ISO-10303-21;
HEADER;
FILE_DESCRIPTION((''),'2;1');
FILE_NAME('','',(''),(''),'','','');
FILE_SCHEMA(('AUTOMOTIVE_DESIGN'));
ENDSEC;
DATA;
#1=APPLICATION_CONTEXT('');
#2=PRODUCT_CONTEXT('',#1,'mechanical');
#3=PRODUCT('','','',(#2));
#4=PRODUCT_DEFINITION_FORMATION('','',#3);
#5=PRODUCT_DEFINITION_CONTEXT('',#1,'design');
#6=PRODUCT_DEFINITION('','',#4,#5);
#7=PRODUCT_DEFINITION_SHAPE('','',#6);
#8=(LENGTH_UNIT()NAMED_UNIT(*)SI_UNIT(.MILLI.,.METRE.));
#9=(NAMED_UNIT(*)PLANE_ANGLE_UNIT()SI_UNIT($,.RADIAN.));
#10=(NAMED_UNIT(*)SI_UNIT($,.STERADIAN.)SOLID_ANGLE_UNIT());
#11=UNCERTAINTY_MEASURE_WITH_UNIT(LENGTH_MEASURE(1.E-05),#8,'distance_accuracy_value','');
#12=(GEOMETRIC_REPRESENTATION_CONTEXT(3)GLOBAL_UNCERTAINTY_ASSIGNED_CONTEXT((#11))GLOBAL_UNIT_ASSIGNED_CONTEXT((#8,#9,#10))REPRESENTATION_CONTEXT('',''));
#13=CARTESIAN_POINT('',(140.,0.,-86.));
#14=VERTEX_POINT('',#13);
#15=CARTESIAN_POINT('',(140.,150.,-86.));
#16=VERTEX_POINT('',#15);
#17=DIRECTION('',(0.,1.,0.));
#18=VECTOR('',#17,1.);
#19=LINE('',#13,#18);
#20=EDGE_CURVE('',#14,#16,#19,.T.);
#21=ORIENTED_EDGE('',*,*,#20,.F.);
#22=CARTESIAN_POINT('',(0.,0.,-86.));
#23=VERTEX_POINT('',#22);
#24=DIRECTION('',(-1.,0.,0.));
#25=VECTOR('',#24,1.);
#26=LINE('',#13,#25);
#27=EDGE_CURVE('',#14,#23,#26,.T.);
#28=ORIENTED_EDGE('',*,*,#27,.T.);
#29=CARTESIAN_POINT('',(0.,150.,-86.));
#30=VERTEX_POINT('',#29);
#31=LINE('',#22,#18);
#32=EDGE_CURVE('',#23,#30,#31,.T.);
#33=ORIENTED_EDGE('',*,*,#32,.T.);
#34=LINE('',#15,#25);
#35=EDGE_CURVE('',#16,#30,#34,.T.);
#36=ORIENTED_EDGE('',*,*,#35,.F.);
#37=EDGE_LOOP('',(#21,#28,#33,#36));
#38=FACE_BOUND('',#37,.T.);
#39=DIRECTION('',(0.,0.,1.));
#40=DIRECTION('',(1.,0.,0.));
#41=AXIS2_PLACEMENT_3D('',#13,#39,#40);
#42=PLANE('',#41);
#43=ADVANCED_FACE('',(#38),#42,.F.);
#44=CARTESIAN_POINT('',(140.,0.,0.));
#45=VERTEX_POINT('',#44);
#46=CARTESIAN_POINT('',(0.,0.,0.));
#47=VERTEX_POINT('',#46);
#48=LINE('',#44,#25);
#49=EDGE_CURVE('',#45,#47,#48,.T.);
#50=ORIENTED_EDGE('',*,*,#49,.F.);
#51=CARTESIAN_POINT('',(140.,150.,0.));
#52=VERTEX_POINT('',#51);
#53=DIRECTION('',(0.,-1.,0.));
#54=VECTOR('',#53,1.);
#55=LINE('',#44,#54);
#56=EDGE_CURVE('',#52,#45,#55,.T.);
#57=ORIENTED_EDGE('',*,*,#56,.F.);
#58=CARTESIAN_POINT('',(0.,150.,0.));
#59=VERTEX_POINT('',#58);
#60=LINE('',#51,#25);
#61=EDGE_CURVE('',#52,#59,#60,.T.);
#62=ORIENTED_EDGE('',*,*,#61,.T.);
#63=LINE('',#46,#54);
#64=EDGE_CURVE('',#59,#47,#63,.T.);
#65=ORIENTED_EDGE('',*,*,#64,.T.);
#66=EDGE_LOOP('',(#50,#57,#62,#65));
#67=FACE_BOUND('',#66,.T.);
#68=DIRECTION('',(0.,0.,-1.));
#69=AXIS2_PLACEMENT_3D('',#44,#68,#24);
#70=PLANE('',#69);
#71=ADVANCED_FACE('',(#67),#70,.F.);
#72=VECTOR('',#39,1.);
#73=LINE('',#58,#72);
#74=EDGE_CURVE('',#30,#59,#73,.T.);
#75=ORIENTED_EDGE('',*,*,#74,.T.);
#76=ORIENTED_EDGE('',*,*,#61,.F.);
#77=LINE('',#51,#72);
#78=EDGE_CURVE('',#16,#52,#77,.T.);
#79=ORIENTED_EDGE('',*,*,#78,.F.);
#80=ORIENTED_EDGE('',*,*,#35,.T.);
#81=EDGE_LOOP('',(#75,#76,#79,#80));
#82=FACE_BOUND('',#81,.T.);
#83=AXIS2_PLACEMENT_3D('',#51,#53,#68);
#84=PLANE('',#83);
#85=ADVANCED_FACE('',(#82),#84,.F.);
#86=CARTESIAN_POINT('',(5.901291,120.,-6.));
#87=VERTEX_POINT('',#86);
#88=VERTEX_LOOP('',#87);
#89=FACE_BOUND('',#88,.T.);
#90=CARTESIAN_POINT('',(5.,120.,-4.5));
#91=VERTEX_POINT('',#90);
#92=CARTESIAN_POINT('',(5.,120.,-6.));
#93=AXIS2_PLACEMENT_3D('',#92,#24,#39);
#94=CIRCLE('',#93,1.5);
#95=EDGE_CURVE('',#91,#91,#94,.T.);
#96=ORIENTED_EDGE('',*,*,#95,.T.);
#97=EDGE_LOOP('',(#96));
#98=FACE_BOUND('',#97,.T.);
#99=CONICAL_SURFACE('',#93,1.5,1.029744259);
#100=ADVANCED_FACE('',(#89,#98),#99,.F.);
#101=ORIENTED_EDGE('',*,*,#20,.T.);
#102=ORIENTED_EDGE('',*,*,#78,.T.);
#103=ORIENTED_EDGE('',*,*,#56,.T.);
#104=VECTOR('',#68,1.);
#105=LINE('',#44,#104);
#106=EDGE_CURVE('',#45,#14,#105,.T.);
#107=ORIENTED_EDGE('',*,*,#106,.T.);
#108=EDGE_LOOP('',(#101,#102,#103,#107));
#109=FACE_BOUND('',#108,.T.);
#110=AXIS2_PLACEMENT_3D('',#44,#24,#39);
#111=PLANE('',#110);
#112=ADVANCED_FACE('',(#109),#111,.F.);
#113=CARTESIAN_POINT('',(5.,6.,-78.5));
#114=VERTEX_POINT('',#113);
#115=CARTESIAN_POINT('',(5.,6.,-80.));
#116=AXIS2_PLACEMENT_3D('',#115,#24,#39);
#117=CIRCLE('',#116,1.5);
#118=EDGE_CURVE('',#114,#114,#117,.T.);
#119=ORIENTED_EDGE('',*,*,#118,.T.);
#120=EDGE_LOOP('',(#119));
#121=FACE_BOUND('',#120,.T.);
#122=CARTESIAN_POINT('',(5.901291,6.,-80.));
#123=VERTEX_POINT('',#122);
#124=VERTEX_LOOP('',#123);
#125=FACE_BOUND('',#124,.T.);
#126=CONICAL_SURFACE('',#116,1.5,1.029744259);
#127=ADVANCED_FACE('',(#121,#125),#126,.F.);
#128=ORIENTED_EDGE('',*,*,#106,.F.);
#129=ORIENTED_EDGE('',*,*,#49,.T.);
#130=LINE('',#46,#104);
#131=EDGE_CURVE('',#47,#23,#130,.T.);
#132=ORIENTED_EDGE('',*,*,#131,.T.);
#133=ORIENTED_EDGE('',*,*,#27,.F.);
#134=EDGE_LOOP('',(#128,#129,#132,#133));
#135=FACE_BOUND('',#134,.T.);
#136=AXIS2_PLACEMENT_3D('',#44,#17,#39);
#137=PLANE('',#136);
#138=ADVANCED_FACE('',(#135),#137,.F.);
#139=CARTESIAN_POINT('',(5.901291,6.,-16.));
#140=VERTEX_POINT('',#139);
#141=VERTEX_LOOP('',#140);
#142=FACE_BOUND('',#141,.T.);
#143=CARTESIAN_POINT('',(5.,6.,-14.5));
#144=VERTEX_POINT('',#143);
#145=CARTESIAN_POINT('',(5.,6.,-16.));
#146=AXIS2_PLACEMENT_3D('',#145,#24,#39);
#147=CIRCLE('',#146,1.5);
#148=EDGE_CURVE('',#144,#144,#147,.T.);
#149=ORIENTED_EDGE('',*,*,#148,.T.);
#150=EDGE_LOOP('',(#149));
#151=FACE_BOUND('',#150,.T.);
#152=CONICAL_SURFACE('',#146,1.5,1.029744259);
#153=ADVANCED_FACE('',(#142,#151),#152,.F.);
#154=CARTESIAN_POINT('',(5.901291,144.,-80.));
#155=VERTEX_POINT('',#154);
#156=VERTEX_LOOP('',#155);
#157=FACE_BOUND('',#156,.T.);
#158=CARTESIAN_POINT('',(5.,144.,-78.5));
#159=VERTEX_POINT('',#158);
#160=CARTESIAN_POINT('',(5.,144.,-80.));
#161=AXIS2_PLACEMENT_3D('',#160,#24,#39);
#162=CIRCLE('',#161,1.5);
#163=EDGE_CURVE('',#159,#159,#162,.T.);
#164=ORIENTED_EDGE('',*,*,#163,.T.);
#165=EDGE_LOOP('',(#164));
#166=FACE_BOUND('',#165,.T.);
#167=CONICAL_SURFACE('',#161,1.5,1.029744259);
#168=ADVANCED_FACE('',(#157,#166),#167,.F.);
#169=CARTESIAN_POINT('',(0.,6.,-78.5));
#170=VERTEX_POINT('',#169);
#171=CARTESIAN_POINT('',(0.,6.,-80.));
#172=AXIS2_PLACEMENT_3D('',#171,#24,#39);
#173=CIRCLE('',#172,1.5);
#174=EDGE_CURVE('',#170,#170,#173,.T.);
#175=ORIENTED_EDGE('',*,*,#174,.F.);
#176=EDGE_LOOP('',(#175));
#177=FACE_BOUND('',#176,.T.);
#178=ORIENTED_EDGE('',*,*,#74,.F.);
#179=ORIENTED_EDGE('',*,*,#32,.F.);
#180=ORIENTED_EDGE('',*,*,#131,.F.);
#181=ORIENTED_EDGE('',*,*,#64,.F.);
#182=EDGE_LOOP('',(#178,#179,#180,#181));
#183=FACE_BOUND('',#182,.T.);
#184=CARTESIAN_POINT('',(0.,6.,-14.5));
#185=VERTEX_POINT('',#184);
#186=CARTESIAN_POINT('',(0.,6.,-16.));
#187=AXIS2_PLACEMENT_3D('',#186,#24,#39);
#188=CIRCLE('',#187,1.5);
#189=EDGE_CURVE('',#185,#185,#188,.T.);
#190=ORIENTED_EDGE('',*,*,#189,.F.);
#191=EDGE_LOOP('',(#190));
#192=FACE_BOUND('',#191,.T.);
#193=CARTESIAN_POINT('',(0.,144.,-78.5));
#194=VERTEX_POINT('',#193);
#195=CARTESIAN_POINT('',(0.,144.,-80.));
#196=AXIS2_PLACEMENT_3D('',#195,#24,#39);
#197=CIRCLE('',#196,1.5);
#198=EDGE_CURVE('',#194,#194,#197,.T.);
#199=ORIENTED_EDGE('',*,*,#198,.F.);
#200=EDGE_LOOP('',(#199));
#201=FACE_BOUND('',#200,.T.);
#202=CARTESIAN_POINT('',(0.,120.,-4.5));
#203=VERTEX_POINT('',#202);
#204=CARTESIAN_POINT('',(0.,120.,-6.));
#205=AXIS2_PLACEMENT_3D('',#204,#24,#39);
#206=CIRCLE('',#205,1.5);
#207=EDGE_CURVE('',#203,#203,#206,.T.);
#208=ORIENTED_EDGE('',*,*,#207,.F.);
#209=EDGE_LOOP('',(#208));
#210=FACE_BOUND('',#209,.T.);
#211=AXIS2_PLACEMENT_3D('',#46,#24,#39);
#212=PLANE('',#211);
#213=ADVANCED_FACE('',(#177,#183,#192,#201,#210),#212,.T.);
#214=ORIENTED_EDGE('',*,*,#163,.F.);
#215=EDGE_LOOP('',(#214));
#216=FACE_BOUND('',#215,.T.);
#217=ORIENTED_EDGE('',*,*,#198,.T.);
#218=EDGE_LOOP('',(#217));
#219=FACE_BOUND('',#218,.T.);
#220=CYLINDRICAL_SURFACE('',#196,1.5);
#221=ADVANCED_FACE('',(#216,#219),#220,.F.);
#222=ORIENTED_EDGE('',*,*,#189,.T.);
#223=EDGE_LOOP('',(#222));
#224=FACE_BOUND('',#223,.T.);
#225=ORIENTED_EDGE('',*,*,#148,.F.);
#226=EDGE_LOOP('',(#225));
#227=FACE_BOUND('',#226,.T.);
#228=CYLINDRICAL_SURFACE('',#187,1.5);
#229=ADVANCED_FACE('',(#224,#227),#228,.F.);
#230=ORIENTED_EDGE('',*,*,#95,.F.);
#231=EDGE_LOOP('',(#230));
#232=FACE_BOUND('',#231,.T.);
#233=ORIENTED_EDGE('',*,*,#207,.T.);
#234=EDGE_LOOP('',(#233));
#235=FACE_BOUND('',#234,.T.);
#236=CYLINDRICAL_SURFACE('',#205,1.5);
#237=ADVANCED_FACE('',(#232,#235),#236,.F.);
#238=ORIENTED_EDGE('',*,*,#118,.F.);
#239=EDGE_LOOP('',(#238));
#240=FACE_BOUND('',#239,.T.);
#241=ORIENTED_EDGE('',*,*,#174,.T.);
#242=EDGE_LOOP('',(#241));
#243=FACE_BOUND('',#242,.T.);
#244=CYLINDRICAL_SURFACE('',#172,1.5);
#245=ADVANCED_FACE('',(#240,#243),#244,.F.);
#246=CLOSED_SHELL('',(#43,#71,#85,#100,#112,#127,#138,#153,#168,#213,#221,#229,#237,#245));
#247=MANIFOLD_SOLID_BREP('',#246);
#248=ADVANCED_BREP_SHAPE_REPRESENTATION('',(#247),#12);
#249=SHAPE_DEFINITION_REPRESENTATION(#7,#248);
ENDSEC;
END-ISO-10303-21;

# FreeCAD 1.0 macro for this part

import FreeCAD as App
import Part
import Sketcher

V = App.Vector

doc = App.newDocument("Part")
body = doc.addObject("PartDesign::Body", "Body")

sketch1 = body.newObject("Sketcher::SketchObject", "Sketch")
sketch1.AttachmentSupport = (doc.getObject("YZ_Plane"), [""])
sketch1.MapMode = "FlatFace"
sketch1.addGeometry([
    Part.LineSegment(V(150, 0, 0), V(0, 0, 0)),
    Part.LineSegment(V(0, 0, 0), V(0, -86, 0)),
    Part.LineSegment(V(0, -86, 0), V(150, -86, 0)),
    Part.LineSegment(V(150, -86, 0), V(150, 0, 0)),
], False)
sketch1.addConstraint([
    Sketcher.Constraint("Coincident", 0, 2, 1, 1),
    Sketcher.Constraint("Coincident", 1, 2, 2, 1),
    Sketcher.Constraint("Coincident", 2, 2, 3, 1),
    Sketcher.Constraint("Coincident", 3, 2, 0, 1),
    Sketcher.Constraint("Horizontal", 0),
    Sketcher.Constraint("Vertical", 1),
    Sketcher.Constraint("Horizontal", 2),
    Sketcher.Constraint("Vertical", 3),
    Sketcher.Constraint("Coincident", 0, 2, -1, 1),
    Sketcher.Constraint("DistanceX", 0, 2, 0, 1, 150.0),
    Sketcher.Constraint("DistanceY", 1, 2, 1, 1, 86.0),
])
pad1 = body.newObject("PartDesign::Pad", "Pad")
pad1.Profile = sketch1
pad1.Length = 140

sketch2 = body.newObject("Sketcher::SketchObject", "Sketch001")
sketch2.AttachmentSupport = (doc.getObject("YZ_Plane"), [""])
sketch2.MapMode = "FlatFace"
sketch2.addGeometry([
    Part.Circle(V(144, -80, 0), V(0, 0, 1), 1.5),
    Part.Circle(V(120, -6, 0), V(0, 0, 1), 1.5),
    Part.Circle(V(6, -16, 0), V(0, 0, 1), 1.5),
    Part.Circle(V(6, -80, 0), V(0, 0, 1), 1.5),
], False)
sketch2.addConstraint([
    Sketcher.Constraint("Equal", 0, 1),
    Sketcher.Constraint("Equal", 1, 2),
    Sketcher.Constraint("Equal", 2, 3),
    Sketcher.Constraint("Horizontal", 0, 3, 3, 3),
    Sketcher.Constraint("Vertical", 2, 3, 3, 3),
    Sketcher.Constraint("Diameter", 0, 3.0),
    Sketcher.Constraint("DistanceX", -1, 1, 0, 3, 144.0),
    Sketcher.Constraint("DistanceY", 0, 3, -1, 1, 80.0),
    Sketcher.Constraint("DistanceX", -1, 1, 1, 3, 120.0),
    Sketcher.Constraint("DistanceY", 1, 3, -1, 1, 6.0),
    Sketcher.Constraint("DistanceX", -1, 1, 2, 3, 6.0),
    Sketcher.Constraint("DistanceY", 2, 3, -1, 1, 16.0),
])
doc.recompute()
hole = body.newObject("PartDesign::Hole", "Hole")
hole.Profile = sketch2
hole.ThreadType = "None"
hole.Diameter = 3
hole.DepthType = "Dimension"
hole.Depth = 5
hole.DrillPoint = "Angled"
hole.DrillPointAngle = 118
hole.Reversed = True

doc.recompute()
